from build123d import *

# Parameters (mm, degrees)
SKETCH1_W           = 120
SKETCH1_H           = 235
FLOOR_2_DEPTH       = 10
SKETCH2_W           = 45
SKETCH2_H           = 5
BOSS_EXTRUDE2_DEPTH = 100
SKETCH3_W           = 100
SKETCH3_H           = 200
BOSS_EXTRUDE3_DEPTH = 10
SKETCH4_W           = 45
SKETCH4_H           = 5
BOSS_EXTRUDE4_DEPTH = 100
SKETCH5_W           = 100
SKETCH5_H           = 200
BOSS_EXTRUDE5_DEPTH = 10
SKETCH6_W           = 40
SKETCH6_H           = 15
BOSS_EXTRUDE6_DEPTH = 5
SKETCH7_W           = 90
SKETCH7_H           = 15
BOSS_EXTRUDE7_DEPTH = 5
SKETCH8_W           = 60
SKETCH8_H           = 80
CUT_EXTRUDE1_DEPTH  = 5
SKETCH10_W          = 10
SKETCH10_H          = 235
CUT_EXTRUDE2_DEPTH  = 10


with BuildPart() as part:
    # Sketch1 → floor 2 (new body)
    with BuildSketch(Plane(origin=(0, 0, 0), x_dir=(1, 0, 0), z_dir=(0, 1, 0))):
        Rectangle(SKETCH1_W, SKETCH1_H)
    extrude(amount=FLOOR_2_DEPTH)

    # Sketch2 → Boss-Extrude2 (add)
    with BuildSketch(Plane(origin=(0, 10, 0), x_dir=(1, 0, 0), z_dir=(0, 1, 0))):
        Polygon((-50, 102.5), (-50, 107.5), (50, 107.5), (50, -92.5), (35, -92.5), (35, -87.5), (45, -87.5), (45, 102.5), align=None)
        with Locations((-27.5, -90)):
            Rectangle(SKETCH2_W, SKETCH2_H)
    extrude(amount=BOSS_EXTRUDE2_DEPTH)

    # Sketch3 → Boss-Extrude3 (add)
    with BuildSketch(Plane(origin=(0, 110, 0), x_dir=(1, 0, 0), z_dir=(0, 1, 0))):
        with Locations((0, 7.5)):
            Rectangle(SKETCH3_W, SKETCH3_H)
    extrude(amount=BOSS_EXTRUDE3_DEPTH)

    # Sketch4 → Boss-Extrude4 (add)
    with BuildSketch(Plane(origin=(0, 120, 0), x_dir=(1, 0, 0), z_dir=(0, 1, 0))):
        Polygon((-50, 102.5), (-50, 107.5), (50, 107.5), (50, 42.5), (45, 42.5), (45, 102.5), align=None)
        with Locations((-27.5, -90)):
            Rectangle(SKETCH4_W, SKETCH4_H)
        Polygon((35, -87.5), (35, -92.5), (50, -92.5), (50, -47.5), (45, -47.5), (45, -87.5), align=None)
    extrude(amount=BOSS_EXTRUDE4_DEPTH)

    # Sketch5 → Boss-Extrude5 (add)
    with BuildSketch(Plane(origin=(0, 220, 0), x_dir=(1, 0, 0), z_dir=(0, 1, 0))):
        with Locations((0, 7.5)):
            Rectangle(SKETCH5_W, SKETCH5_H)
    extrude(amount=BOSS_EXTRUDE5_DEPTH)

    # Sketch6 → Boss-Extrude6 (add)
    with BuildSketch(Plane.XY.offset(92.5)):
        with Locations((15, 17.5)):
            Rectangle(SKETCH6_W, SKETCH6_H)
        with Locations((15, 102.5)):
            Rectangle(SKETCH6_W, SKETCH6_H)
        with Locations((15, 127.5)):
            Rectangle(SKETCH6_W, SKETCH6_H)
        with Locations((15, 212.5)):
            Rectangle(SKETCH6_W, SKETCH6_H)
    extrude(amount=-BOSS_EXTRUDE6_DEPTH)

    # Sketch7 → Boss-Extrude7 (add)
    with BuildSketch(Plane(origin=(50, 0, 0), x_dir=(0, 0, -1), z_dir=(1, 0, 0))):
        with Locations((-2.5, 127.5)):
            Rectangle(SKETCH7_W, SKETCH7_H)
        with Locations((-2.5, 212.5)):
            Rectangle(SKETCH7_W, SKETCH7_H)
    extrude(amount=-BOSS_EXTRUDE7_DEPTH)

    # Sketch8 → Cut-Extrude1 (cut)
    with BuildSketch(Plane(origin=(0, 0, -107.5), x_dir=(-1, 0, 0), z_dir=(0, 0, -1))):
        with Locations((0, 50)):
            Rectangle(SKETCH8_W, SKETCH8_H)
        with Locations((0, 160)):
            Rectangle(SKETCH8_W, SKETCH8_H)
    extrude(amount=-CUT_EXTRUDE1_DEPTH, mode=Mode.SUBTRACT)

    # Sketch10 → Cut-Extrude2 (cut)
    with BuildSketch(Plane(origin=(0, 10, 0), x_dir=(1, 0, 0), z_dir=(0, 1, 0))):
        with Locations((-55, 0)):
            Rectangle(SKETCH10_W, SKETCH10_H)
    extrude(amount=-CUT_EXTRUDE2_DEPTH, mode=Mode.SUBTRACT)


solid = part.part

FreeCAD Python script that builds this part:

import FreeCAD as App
import Part
import Sketcher

V = App.Vector

doc = App.newDocument("Part")
body = doc.addObject("PartDesign::Body", "Body")

# Sketch on XZ plane
sketch1 = body.newObject("Sketcher::SketchObject", "Sketch")
sketch1.AttachmentSupport = (doc.getObject("XZ_Plane"), [""])
sketch1.MapMode = "FlatFace"
sketch1.addGeometry([
    Part.LineSegment(V(-60, -118, 0), V(-60, 118, 0)),
    Part.LineSegment(V(-60, 118, 0), V(60, 118, 0)),
    Part.LineSegment(V(60, 118, 0), V(60, -118, 0)),
    Part.LineSegment(V(60, -118, 0), V(-60, -118, 0)),
], False)
sketch1.addConstraint([
    Sketcher.Constraint("Coincident", 0, 2, 1, 1),
    Sketcher.Constraint("Coincident", 1, 2, 2, 1),
    Sketcher.Constraint("Coincident", 2, 2, 3, 1),
    Sketcher.Constraint("Coincident", 3, 2, 0, 1),
    Sketcher.Constraint("Vertical", 0),
    Sketcher.Constraint("Horizontal", 1),
    Sketcher.Constraint("Vertical", 2),
    Sketcher.Constraint("Horizontal", 3),
    Sketcher.Constraint("Symmetric", 0, 2, 2, 2, -1, 1),
    Sketcher.Constraint("DistanceX", 1, 1, 1, 2, 120.0),
    Sketcher.Constraint("DistanceY", 0, 1, 0, 2, 235.0),
])
pad1 = body.newObject("PartDesign::Pad", "Pad")
pad1.Profile = sketch1
pad1.Length = 10
pad1.Reversed = True

# Sketch on XZ plane
sketch2 = body.newObject("Sketcher::SketchObject", "Sketch001")
sketch2.AttachmentSupport = (doc.getObject("XZ_Plane"), [""])
sketch2.MapMode = "FlatFace"
sketch2.AttachmentOffset = App.Placement(V(0, 0, -10), App.Rotation())
sketch2.addGeometry([
    Part.LineSegment(V(-50, -108, 0), V(-50, -102, 0)),  # 0
    Part.LineSegment(V(-50, -102, 0), V(45, -102, 0)),  # 1
    Part.LineSegment(V(45, -102, 0), V(45, 88, 0)),  # 2
    Part.LineSegment(V(45, 88, 0), V(35, 88, 0)),  # 3
    Part.LineSegment(V(35, 88, 0), V(35, 92, 0)),  # 4
    Part.LineSegment(V(35, 92, 0), V(50, 92, 0)),  # 5
    Part.LineSegment(V(50, 92, 0), V(50, -108, 0)),  # 6
    Part.LineSegment(V(50, -108, 0), V(-50, -108, 0)),  # 7
    Part.LineSegment(V(-50, 88, 0), V(-50, 92, 0)),  # 8
    Part.LineSegment(V(-50, 92, 0), V(-5, 92, 0)),  # 9
    Part.LineSegment(V(-5, 92, 0), V(-5, 88, 0)),  # 10
    Part.LineSegment(V(-5, 88, 0), V(-50, 88, 0)),  # 11
], False)
sketch2.addConstraint([
    Sketcher.Constraint("Coincident", 0, 2, 1, 1),
    Sketcher.Constraint("Coincident", 1, 2, 2, 1),
    Sketcher.Constraint("Coincident", 2, 2, 3, 1),
    Sketcher.Constraint("Coincident", 3, 2, 4, 1),
    Sketcher.Constraint("Coincident", 4, 2, 5, 1),
    Sketcher.Constraint("Coincident", 5, 2, 6, 1),
    Sketcher.Constraint("Coincident", 6, 2, 7, 1),
    Sketcher.Constraint("Coincident", 7, 2, 0, 1),
    Sketcher.Constraint("Coincident", 8, 2, 9, 1),
    Sketcher.Constraint("Coincident", 9, 2, 10, 1),
    Sketcher.Constraint("Coincident", 10, 2, 11, 1),
    Sketcher.Constraint("Coincident", 11, 2, 8, 1),
    Sketcher.Constraint("Vertical", 0),
    Sketcher.Constraint("Horizontal", 1),
    Sketcher.Constraint("Vertical", 2),
    Sketcher.Constraint("Horizontal", 3),
    Sketcher.Constraint("Vertical", 4),
    Sketcher.Constraint("Horizontal", 5),
    Sketcher.Constraint("Vertical", 6),
    Sketcher.Constraint("Horizontal", 7),
    Sketcher.Constraint("Vertical", 8),
    Sketcher.Constraint("Horizontal", 9),
    Sketcher.Constraint("Vertical", 10),
    Sketcher.Constraint("Horizontal", 11),
    Sketcher.Constraint("Symmetric", 5, 2, 8, 2, -2),
    Sketcher.Constraint("Horizontal", 3, 2, 10, 2),
    Sketcher.Constraint("Vertical", 7, 2, 8, 2),
    Sketcher.Constraint("Equal", 0, 4),
    Sketcher.Constraint("DistanceX", 1, 1, 1, 2, 95.0),
    Sketcher.Constraint("DistanceX", 3, 2, 3, 1, 10.0),
    Sketcher.Constraint("DistanceX", 5, 1, 5, 2, 15.0),
    Sketcher.Constraint("DistanceX", 9, 1, 9, 2, 45.0),
    Sketcher.Constraint("DistanceY", 0, 1, 0, 2, 5.0),
    Sketcher.Constraint("DistanceY", 2, 1, 2, 2, 190.0),
    Sketcher.Constraint("DistanceY", 0, 2, -1, 1, 102.5),
])
pad2 = body.newObject("PartDesign::Pad", "Pad001")
pad2.Profile = sketch2
pad2.Length = 100
pad2.Reversed = True

# Sketch on XZ plane
sketch3 = body.newObject("Sketcher::SketchObject", "Sketch002")
sketch3.AttachmentSupport = (doc.getObject("XZ_Plane"), [""])
sketch3.MapMode = "FlatFace"
sketch3.AttachmentOffset = App.Placement(V(0, 0, -110), App.Rotation())
sketch3.addGeometry([
    Part.LineSegment(V(-50, -108, 0), V(-50, 92, 0)),
    Part.LineSegment(V(-50, 92, 0), V(50, 92, 0)),
    Part.LineSegment(V(50, 92, 0), V(50, -108, 0)),
    Part.LineSegment(V(50, -108, 0), V(-50, -108, 0)),
], False)
sketch3.addConstraint([
    Sketcher.Constraint("Coincident", 0, 2, 1, 1),
    Sketcher.Constraint("Coincident", 1, 2, 2, 1),
    Sketcher.Constraint("Coincident", 2, 2, 3, 1),
    Sketcher.Constraint("Coincident", 3, 2, 0, 1),
    Sketcher.Constraint("Vertical", 0),
    Sketcher.Constraint("Horizontal", 1),
    Sketcher.Constraint("Vertical", 2),
    Sketcher.Constraint("Horizontal", 3),
    Sketcher.Constraint("DistanceX", 1, 1, 1, 2, 100.0),
    Sketcher.Constraint("DistanceY", 0, 1, 0, 2, 200.0),
    Sketcher.Constraint("DistanceX", 0, 2, -1, 1, 50.0),
    Sketcher.Constraint("DistanceY", -1, 1, 0, 2, 92.5),
])
pad3 = body.newObject("PartDesign::Pad", "Pad002")
pad3.Profile = sketch3
pad3.Length = 10
pad3.Reversed = True

# Sketch on XZ plane
sketch4 = body.newObject("Sketcher::SketchObject", "Sketch003")
sketch4.AttachmentSupport = (doc.getObject("XZ_Plane"), [""])
sketch4.MapMode = "FlatFace"
sketch4.AttachmentOffset = App.Placement(V(0, 0, -120), App.Rotation())
sketch4.addGeometry([
    Part.LineSegment(V(-50, -108, 0), V(-50, -102, 0)),  # 0
    Part.LineSegment(V(-50, -102, 0), V(45, -102, 0)),  # 1
    Part.LineSegment(V(45, -102, 0), V(45, -42, 0)),  # 2
    Part.LineSegment(V(45, -42, 0), V(50, -42, 0)),  # 3
    Part.LineSegment(V(50, -42, 0), V(50, -108, 0)),  # 4
    Part.LineSegment(V(50, -108, 0), V(-50, -108, 0)),  # 5
    Part.LineSegment(V(-50, 88, 0), V(-50, 92, 0)),  # 6
    Part.LineSegment(V(-50, 92, 0), V(-5, 92, 0)),  # 7
    Part.LineSegment(V(-5, 92, 0), V(-5, 88, 0)),  # 8
    Part.LineSegment(V(-5, 88, 0), V(-50, 88, 0)),  # 9
    Part.LineSegment(V(35, 88, 0), V(35, 92, 0)),  # 10
    Part.LineSegment(V(35, 92, 0), V(50, 92, 0)),  # 11
    Part.LineSegment(V(50, 92, 0), V(50, 48, 0)),  # 12
    Part.LineSegment(V(50, 48, 0), V(45, 48, 0)),  # 13
    Part.LineSegment(V(45, 48, 0), V(45, 88, 0)),  # 14
    Part.LineSegment(V(45, 88, 0), V(35, 88, 0)),  # 15
], False)
sketch4.addConstraint([
    Sketcher.Constraint("Coincident", 0, 2, 1, 1),
    Sketcher.Constraint("Coincident", 1, 2, 2, 1),
    Sketcher.Constraint("Coincident", 2, 2, 3, 1),
    Sketcher.Constraint("Coincident", 3, 2, 4, 1),
    Sketcher.Constraint("Coincident", 4, 2, 5, 1),
    Sketcher.Constraint("Coincident", 5, 2, 0, 1),
    Sketcher.Constraint("Coincident", 6, 2, 7, 1),
    Sketcher.Constraint("Coincident", 7, 2, 8, 1),
    Sketcher.Constraint("Coincident", 8, 2, 9, 1),
    Sketcher.Constraint("Coincident", 9, 2, 6, 1),
    Sketcher.Constraint("Coincident", 10, 2, 11, 1),
    Sketcher.Constraint("Coincident", 11, 2, 12, 1),
    Sketcher.Constraint("Coincident", 12, 2, 13, 1),
    Sketcher.Constraint("Coincident", 13, 2, 14, 1),
    Sketcher.Constraint("Coincident", 14, 2, 15, 1),
    Sketcher.Constraint("Coincident", 15, 2, 10, 1),
    Sketcher.Constraint("Vertical", 0),
    Sketcher.Constraint("Horizontal", 1),
    Sketcher.Constraint("Vertical", 2),
    Sketcher.Constraint("Horizontal", 3),
    Sketcher.Constraint("Vertical", 4),
    Sketcher.Constraint("Horizontal", 5),
    Sketcher.Constraint("Vertical", 6),
    Sketcher.Constraint("Horizontal", 7),
    Sketcher.Constraint("Vertical", 8),
    Sketcher.Constraint("Horizontal", 9),
    Sketcher.Constraint("Vertical", 10),
    Sketcher.Constraint("Horizontal", 11),
    Sketcher.Constraint("Vertical", 12),
    Sketcher.Constraint("Horizontal", 13),
    Sketcher.Constraint("Vertical", 14),
    Sketcher.Constraint("Horizontal", 15),
    Sketcher.Constraint("Symmetric", 6, 2, 11, 2, -2),
    Sketcher.Constraint("Horizontal", 9, 2, 14, 2),
    Sketcher.Constraint("Vertical", 5, 2, 6, 2),
    Sketcher.Constraint("Vertical", 4, 2, 11, 2),
    Sketcher.Constraint("Vertical", 2, 2, 13, 2),
    Sketcher.Constraint("Equal", 13, 0),
    Sketcher.Constraint("Equal", 0, 6),
    Sketcher.Constraint("Equal", 9, 12),
    Sketcher.Constraint("DistanceX", 1, 1, 1, 2, 95.0),
    Sketcher.Constraint("DistanceX", 3, 1, 3, 2, 5.0),
    Sketcher.Constraint("DistanceX", 7, 1, 7, 2, 45.0),
    Sketcher.Constraint("DistanceX", 11, 1, 11, 2, 15.0),
    Sketcher.Constraint("DistanceY", 2, 1, 2, 2, 60.0),
    Sketcher.Constraint("DistanceY", 2, 2, 6, 2, 135.0),
    Sketcher.Constraint("DistanceY", 0, 2, -1, 1, 102.5),
])
pad4 = body.newObject("PartDesign::Pad", "Pad003")
pad4.Profile = sketch4
pad4.Length = 100
pad4.Reversed = True

# Sketch on XZ plane
sketch5 = body.newObject("Sketcher::SketchObject", "Sketch004")
sketch5.AttachmentSupport = (doc.getObject("XZ_Plane"), [""])
sketch5.MapMode = "FlatFace"
sketch5.AttachmentOffset = App.Placement(V(0, 0, -220), App.Rotation())
sketch5.addGeometry([
    Part.LineSegment(V(-50, -108, 0), V(-50, 92, 0)),
    Part.LineSegment(V(-50, 92, 0), V(50, 92, 0)),
    Part.LineSegment(V(50, 92, 0), V(50, -108, 0)),
    Part.LineSegment(V(50, -108, 0), V(-50, -108, 0)),
], False)
sketch5.addConstraint([
    Sketcher.Constraint("Coincident", 0, 2, 1, 1),
    Sketcher.Constraint("Coincident", 1, 2, 2, 1),
    Sketcher.Constraint("Coincident", 2, 2, 3, 1),
    Sketcher.Constraint("Coincident", 3, 2, 0, 1),
    Sketcher.Constraint("Vertical", 0),
    Sketcher.Constraint("Horizontal", 1),
    Sketcher.Constraint("Vertical", 2),
    Sketcher.Constraint("Horizontal", 3),
    Sketcher.Constraint("DistanceX", 1, 1, 1, 2, 100.0),
    Sketcher.Constraint("DistanceY", 0, 1, 0, 2, 200.0),
    Sketcher.Constraint("DistanceX", 0, 2, -1, 1, 50.0),
    Sketcher.Constraint("DistanceY", -1, 1, 0, 2, 92.5),
])
pad5 = body.newObject("PartDesign::Pad", "Pad004")
pad5.Profile = sketch5
pad5.Length = 10
pad5.Reversed = True

# Sketch on XY plane
sketch6 = body.newObject("Sketcher::SketchObject", "Sketch005")
sketch6.AttachmentSupport = (doc.getObject("XY_Plane"), [""])
sketch6.MapMode = "FlatFace"
sketch6.AttachmentOffset = App.Placement(V(0, 0, 92.5), App.Rotation())
sketch6.addGeometry([
    Part.LineSegment(V(-5, 25, 0), V(-5, 10, 0)),  # 0
    Part.LineSegment(V(-5, 10, 0), V(35, 10, 0)),  # 1
    Part.LineSegment(V(35, 10, 0), V(35, 25, 0)),  # 2
    Part.LineSegment(V(35, 25, 0), V(-5, 25, 0)),  # 3
    Part.LineSegment(V(-5, 110, 0), V(-5, 95, 0)),  # 4
    Part.LineSegment(V(-5, 95, 0), V(35, 95, 0)),  # 5
    Part.LineSegment(V(35, 95, 0), V(35, 110, 0)),  # 6
    Part.LineSegment(V(35, 110, 0), V(-5, 110, 0)),  # 7
    Part.LineSegment(V(-5, 135, 0), V(-5, 120, 0)),  # 8
    Part.LineSegment(V(-5, 120, 0), V(35, 120, 0)),  # 9
    Part.LineSegment(V(35, 120, 0), V(35, 135, 0)),  # 10
    Part.LineSegment(V(35, 135, 0), V(-5, 135, 0)),  # 11
    Part.LineSegment(V(-5, 220, 0), V(-5, 205, 0)),  # 12
    Part.LineSegment(V(-5, 205, 0), V(35, 205, 0)),  # 13
    Part.LineSegment(V(35, 205, 0), V(35, 220, 0)),  # 14
    Part.LineSegment(V(35, 220, 0), V(-5, 220, 0)),  # 15
], False)
sketch6.addConstraint([
    Sketcher.Constraint("Coincident", 0, 2, 1, 1),
    Sketcher.Constraint("Coincident", 1, 2, 2, 1),
    Sketcher.Constraint("Coincident", 2, 2, 3, 1),
    Sketcher.Constraint("Coincident", 3, 2, 0, 1),
    Sketcher.Constraint("Coincident", 4, 2, 5, 1),
    Sketcher.Constraint("Coincident", 5, 2, 6, 1),
    Sketcher.Constraint("Coincident", 6, 2, 7, 1),
    Sketcher.Constraint("Coincident", 7, 2, 4, 1),
    Sketcher.Constraint("Coincident", 8, 2, 9, 1),
    Sketcher.Constraint("Coincident", 9, 2, 10, 1),
    Sketcher.Constraint("Coincident", 10, 2, 11, 1),
    Sketcher.Constraint("Coincident", 11, 2, 8, 1),
    Sketcher.Constraint("Coincident", 12, 2, 13, 1),
    Sketcher.Constraint("Coincident", 13, 2, 14, 1),
    Sketcher.Constraint("Coincident", 14, 2, 15, 1),
    Sketcher.Constraint("Coincident", 15, 2, 12, 1),
    Sketcher.Constraint("Vertical", 0),
    Sketcher.Constraint("Horizontal", 1),
    Sketcher.Constraint("Vertical", 2),
    Sketcher.Constraint("Horizontal", 3),
    Sketcher.Constraint("Vertical", 4),
    Sketcher.Constraint("Horizontal", 5),
    Sketcher.Constraint("Vertical", 6),
    Sketcher.Constraint("Horizontal", 7),
    Sketcher.Constraint("Vertical", 8),
    Sketcher.Constraint("Horizontal", 9),
    Sketcher.Constraint("Vertical", 10),
    Sketcher.Constraint("Horizontal", 11),
    Sketcher.Constraint("Vertical", 12),
    Sketcher.Constraint("Horizontal", 13),
    Sketcher.Constraint("Vertical", 14),
    Sketcher.Constraint("Horizontal", 15),
    Sketcher.Constraint("Vertical", 3, 2, 4, 2),
    Sketcher.Constraint("Vertical", 2, 2, 5, 2),
    Sketcher.Constraint("Vertical", 7, 2, 8, 2),
    Sketcher.Constraint("Vertical", 6, 2, 9, 2),
    Sketcher.Constraint("Vertical", 11, 2, 12, 2),
    Sketcher.Constraint("Vertical", 10, 2, 13, 2),
    Sketcher.Constraint("Equal", 2, 4),
    Sketcher.Constraint("Equal", 6, 8),
    Sketcher.Constraint("Equal", 10, 12),
    Sketcher.Constraint("DistanceX", 1, 1, 1, 2, 40.0),
    Sketcher.Constraint("DistanceY", 0, 2, 0, 1, 15.0),
    Sketcher.Constraint("DistanceX", 0, 2, -1, 1, 5.0),
    Sketcher.Constraint("DistanceY", -1, 1, 0, 2, 10.0),
    Sketcher.Constraint("DistanceY", -1, 1, 4, 2, 95.0),
    Sketcher.Constraint("DistanceY", -1, 1, 8, 2, 120.0),
    Sketcher.Constraint("DistanceY", -1, 1, 12, 2, 205.0),
])
pad6 = body.newObject("PartDesign::Pad", "Pad005")
pad6.Profile = sketch6
pad6.Length = 5
pad6.Reversed = True

# Sketch on YZ plane
sketch7 = body.newObject("Sketcher::SketchObject", "Sketch006")
sketch7.AttachmentSupport = (doc.getObject("YZ_Plane"), [""])
sketch7.MapMode = "FlatFace"
sketch7.AttachmentOffset = App.Placement(V(0, 0, 50), App.Rotation())
sketch7.addGeometry([
    Part.LineSegment(V(135, 48, 0), V(120, 48, 0)),  # 0
    Part.LineSegment(V(120, 48, 0), V(120, -42, 0)),  # 1
    Part.LineSegment(V(120, -42, 0), V(135, -42, 0)),  # 2
    Part.LineSegment(V(135, -42, 0), V(135, 48, 0)),  # 3
    Part.LineSegment(V(220, 48, 0), V(205, 48, 0)),  # 4
    Part.LineSegment(V(205, 48, 0), V(205, -42, 0)),  # 5
    Part.LineSegment(V(205, -42, 0), V(220, -42, 0)),  # 6
    Part.LineSegment(V(220, -42, 0), V(220, 48, 0)),  # 7
], False)
sketch7.addConstraint([
    Sketcher.Constraint("Coincident", 0, 2, 1, 1),
    Sketcher.Constraint("Coincident", 1, 2, 2, 1),
    Sketcher.Constraint("Coincident", 2, 2, 3, 1),
    Sketcher.Constraint("Coincident", 3, 2, 0, 1),
    Sketcher.Constraint("Coincident", 4, 2, 5, 1),
    Sketcher.Constraint("Coincident", 5, 2, 6, 1),
    Sketcher.Constraint("Coincident", 6, 2, 7, 1),
    Sketcher.Constraint("Coincident", 7, 2, 4, 1),
    Sketcher.Constraint("Horizontal", 0),
    Sketcher.Constraint("Vertical", 1),
    Sketcher.Constraint("Horizontal", 2),
    Sketcher.Constraint("Vertical", 3),
    Sketcher.Constraint("Horizontal", 4),
    Sketcher.Constraint("Vertical", 5),
    Sketcher.Constraint("Horizontal", 6),
    Sketcher.Constraint("Vertical", 7),
    Sketcher.Constraint("Horizontal", 3, 2, 4, 2),
    Sketcher.Constraint("Horizontal", 2, 2, 5, 2),
    Sketcher.Constraint("Equal", 2, 4),
    Sketcher.Constraint("DistanceX", 0, 2, 0, 1, 15.0),
    Sketcher.Constraint("DistanceY", 1, 2, 1, 1, 90.0),
    Sketcher.Constraint("DistanceX", -1, 1, 0, 2, 120.0),
    Sketcher.Constraint("DistanceX", -1, 1, 4, 2, 205.0),
    Sketcher.Constraint("DistanceY", -1, 1, 0, 2, 47.5),
])
pad7 = body.newObject("PartDesign::Pad", "Pad006")
pad7.Profile = sketch7
pad7.Length = 5
pad7.Reversed = True

# Sketch on XY plane
sketch8 = body.newObject("Sketcher::SketchObject", "Sketch007")
sketch8.AttachmentSupport = (doc.getObject("XY_Plane"), [""])
sketch8.MapMode = "FlatFace"
sketch8.AttachmentOffset = App.Placement(V(0, 0, -107.5), App.Rotation())
sketch8.addGeometry([
    Part.LineSegment(V(30, 90, 0), V(30, 10, 0)),  # 0
    Part.LineSegment(V(30, 10, 0), V(-30, 10, 0)),  # 1
    Part.LineSegment(V(-30, 10, 0), V(-30, 90, 0)),  # 2
    Part.LineSegment(V(-30, 90, 0), V(30, 90, 0)),  # 3
    Part.LineSegment(V(30, 200, 0), V(30, 120, 0)),  # 4
    Part.LineSegment(V(30, 120, 0), V(-30, 120, 0)),  # 5
    Part.LineSegment(V(-30, 120, 0), V(-30, 200, 0)),  # 6
    Part.LineSegment(V(-30, 200, 0), V(30, 200, 0)),  # 7
], False)
sketch8.addConstraint([
    Sketcher.Constraint("Coincident", 0, 2, 1, 1),
    Sketcher.Constraint("Coincident", 1, 2, 2, 1),
    Sketcher.Constraint("Coincident", 2, 2, 3, 1),
    Sketcher.Constraint("Coincident", 3, 2, 0, 1),
    Sketcher.Constraint("Coincident", 4, 2, 5, 1),
    Sketcher.Constraint("Coincident", 5, 2, 6, 1),
    Sketcher.Constraint("Coincident", 6, 2, 7, 1),
    Sketcher.Constraint("Coincident", 7, 2, 4, 1),
    Sketcher.Constraint("Vertical", 0),
    Sketcher.Constraint("Horizontal", 1),
    Sketcher.Constraint("Vertical", 2),
    Sketcher.Constraint("Horizontal", 3),
    Sketcher.Constraint("Vertical", 4),
    Sketcher.Constraint("Horizontal", 5),
    Sketcher.Constraint("Vertical", 6),
    Sketcher.Constraint("Horizontal", 7),
    Sketcher.Constraint("Vertical", 3, 2, 4, 2),
    Sketcher.Constraint("Vertical", 2, 2, 5, 2),
    Sketcher.Constraint("Equal", 2, 4),
    Sketcher.Constraint("DistanceX", 1, 2, 1, 1, 60.0),
    Sketcher.Constraint("DistanceY", 0, 2, 0, 1, 80.0),
    Sketcher.Constraint("DistanceX", -1, 1, 0, 2, 30.0),
    Sketcher.Constraint("DistanceY", -1, 1, 0, 2, 10.0),
    Sketcher.Constraint("DistanceY", -1, 1, 4, 2, 120.0),
])
pocket1 = body.newObject("PartDesign::Pocket", "Pocket")
pocket1.Profile = sketch8
pocket1.Length = 5
pocket1.Reversed = True

# Sketch on XZ plane
sketch9 = body.newObject("Sketcher::SketchObject", "Sketch008")
sketch9.AttachmentSupport = (doc.getObject("XZ_Plane"), [""])
sketch9.MapMode = "FlatFace"
sketch9.AttachmentOffset = App.Placement(V(0, 0, -10), App.Rotation())
sketch9.addGeometry([
    Part.LineSegment(V(-60, -118, 0), V(-60, 118, 0)),
    Part.LineSegment(V(-60, 118, 0), V(-50, 118, 0)),
    Part.LineSegment(V(-50, 118, 0), V(-50, -118, 0)),
    Part.LineSegment(V(-50, -118, 0), V(-60, -118, 0)),
], False)
sketch9.addConstraint([
    Sketcher.Constraint("Coincident", 0, 2, 1, 1),
    Sketcher.Constraint("Coincident", 1, 2, 2, 1),
    Sketcher.Constraint("Coincident", 2, 2, 3, 1),
    Sketcher.Constraint("Coincident", 3, 2, 0, 1),
    Sketcher.Constraint("Vertical", 0),
    Sketcher.Constraint("Horizontal", 1),
    Sketcher.Constraint("Vertical", 2),
    Sketcher.Constraint("Horizontal", 3),
    Sketcher.Constraint("DistanceX", 1, 1, 1, 2, 10.0),
    Sketcher.Constraint("DistanceY", 0, 1, 0, 2, 235.0),
    Sketcher.Constraint("DistanceX", 0, 2, -1, 1, 60.0),
    Sketcher.Constraint("DistanceY", -1, 1, 0, 2, 117.5),
])
pocket2 = body.newObject("PartDesign::Pocket", "Pocket001")
pocket2.Profile = sketch9
pocket2.Length = 10
pocket2.Reversed = True

doc.recompute()
